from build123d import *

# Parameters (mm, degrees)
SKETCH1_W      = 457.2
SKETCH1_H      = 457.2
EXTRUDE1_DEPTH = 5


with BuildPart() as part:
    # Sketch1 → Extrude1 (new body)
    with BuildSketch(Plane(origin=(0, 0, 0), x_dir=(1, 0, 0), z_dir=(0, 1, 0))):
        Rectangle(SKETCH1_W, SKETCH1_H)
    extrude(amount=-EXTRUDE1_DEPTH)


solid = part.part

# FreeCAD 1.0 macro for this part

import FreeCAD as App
import Part
import Sketcher
from FreeCAD import Vector
Q = App.Units.Quantity

doc = App.newDocument("Part")
params = doc.addObject("Spreadsheet::Sheet", "Params")
for row, (alias, value) in enumerate([
    ("sketch1_width", "457.2 mm"),
    ("pad1_length", "5 mm"),
], start=1):
    params.set(f"A{row}", alias)
    params.set(f"B{row}", "=" + value)
    params.setAlias(f"B{row}", alias)

body = doc.addObject("PartDesign::Body", "Body")

sketch1 = body.newObject("Sketcher::SketchObject", "Sketch")
sketch1.AttachmentSupport = (doc.getObject("XZ_Plane"), [""])
sketch1.MapMode = "FlatFace"
sketch1.addGeometry([
    Part.LineSegment(Vector(-229, -229, 0), Vector(-229, 229, 0)),
    Part.LineSegment(Vector(-229, 229, 0), Vector(229, 229, 0)),
    Part.LineSegment(Vector(229, 229, 0), Vector(229, -229, 0)),
    Part.LineSegment(Vector(229, -229, 0), Vector(-229, -229, 0)),
], False)
sketch1.addConstraint([
    Sketcher.Constraint("Coincident", 0, 2, 1, 1),
    Sketcher.Constraint("Coincident", 1, 2, 2, 1),
    Sketcher.Constraint("Coincident", 2, 2, 3, 1),
    Sketcher.Constraint("Coincident", 3, 2, 0, 1),
    Sketcher.Constraint("Vertical", 0),
    Sketcher.Constraint("Horizontal", 1),
    Sketcher.Constraint("Vertical", 2),
    Sketcher.Constraint("Horizontal", 3),
    Sketcher.Constraint("Symmetric", 0, 2, 2, 2, -1, 1),
    Sketcher.Constraint("Equal", 3, 0),
    Sketcher.Constraint("DistanceX", 1, 1, 1, 2, Q("457.2 mm")),
])
sketch1.setExpression("Constraints[10]", "Params.sketch1_width")
pad1 = body.newObject("PartDesign::Pad", "Pad")
pad1.Profile = sketch1
pad1.setExpression("Length", "Params.pad1_length")

doc.recompute()
